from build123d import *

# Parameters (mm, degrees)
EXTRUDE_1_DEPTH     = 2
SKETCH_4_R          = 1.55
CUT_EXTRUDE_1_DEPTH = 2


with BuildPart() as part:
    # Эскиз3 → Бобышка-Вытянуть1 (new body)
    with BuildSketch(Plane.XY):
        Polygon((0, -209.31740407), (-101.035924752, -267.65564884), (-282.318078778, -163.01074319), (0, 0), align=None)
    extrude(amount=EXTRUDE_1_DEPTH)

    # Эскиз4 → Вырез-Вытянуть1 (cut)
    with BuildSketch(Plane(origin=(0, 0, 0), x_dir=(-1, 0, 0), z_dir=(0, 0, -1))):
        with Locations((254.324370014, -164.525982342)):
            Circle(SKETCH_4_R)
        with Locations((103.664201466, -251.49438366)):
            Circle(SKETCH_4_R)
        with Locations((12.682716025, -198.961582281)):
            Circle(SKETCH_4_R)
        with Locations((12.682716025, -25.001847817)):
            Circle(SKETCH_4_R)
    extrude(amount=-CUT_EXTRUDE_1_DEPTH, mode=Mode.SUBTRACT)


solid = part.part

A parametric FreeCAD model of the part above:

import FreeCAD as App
import Part
import Sketcher
Q = App.Units.Quantity

doc = App.newDocument("Part")
params = doc.addObject("Spreadsheet::Sheet", "Params")
for row, (alias, value) in enumerate([
    ("sketch1_length", "326 mm"),
    ("pad1_length", "2 mm"),
    ("sketch2_diameter", "3.1 mm"),
    ("pocket1_length", "2 mm"),
], start=1):
    params.set(f"A{row}", alias)
    params.set(f"B{row}", "=" + value)
    params.setAlias(f"B{row}", alias)

body = doc.addObject("PartDesign::Body", "Body")

# Sketch on XY plane
sketch1 = body.newObject("Sketcher::SketchObject", "Sketch")
sketch1.AttachmentSupport = (doc.getObject("XY_Plane"), [""])
sketch1.MapMode = "FlatFace"
sketch1.addGeometry([
    Part.LineSegment(App.Vector(-101.035925, -267.655649, 0), App.Vector(0, -209.317404, 0)),
    Part.LineSegment(App.Vector(0, -209.317404, 0), App.Vector(0, 0, 0)),
    Part.LineSegment(App.Vector(0, 0, 0), App.Vector(-282.318079, -163.010743, 0)),
    Part.LineSegment(App.Vector(-282.318079, -163.010743, 0), App.Vector(-101.035925, -267.655649, 0)),
], False)
sketch1.addConstraint([
    Sketcher.Constraint("Coincident", 0, 2, 1, 1),
    Sketcher.Constraint("Coincident", 1, 2, 2, 1),
    Sketcher.Constraint("Coincident", 2, 2, 3, 1),
    Sketcher.Constraint("Coincident", 3, 2, 0, 1),
    Sketcher.Constraint("Vertical", 1),
    Sketcher.Constraint("Coincident", 1, 2, -1, 1),
    Sketcher.Constraint("Parallel", 0, 2),
    Sketcher.Constraint("Distance", 2, Q("326 mm")),
    Sketcher.Constraint("Distance", 0, Q("116.6688 mm")),
    Sketcher.Constraint("DistanceY", 1, 1, 1, 2, Q("209.317404 mm")),
    Sketcher.Constraint("DistanceX", 2, 2, -1, 1, Q("282.318079 mm")),
])
sketch1.setExpression("Constraints[7]", "Params.sketch1_length")
pad1 = body.newObject("PartDesign::Pad", "Pad")
pad1.Profile = sketch1
pad1.setExpression("Length", "Params.pad1_length")

# Sketch on XY plane
sketch2 = body.newObject("Sketcher::SketchObject", "Sketch001")
sketch2.AttachmentSupport = (doc.getObject("XY_Plane"), [""])
sketch2.MapMode = "FlatFace"
sketch2.addGeometry([
    Part.Circle(App.Vector(-254.32437, -164.525982, 0), App.Vector(0, 0, 1), 1.55),
    Part.Circle(App.Vector(-103.664201, -251.494384, 0), App.Vector(0, 0, 1), 1.55),
    Part.Circle(App.Vector(-12.682716, -198.961582, 0), App.Vector(0, 0, 1), 1.55),
    Part.Circle(App.Vector(-12.682716, -25.001848, 0), App.Vector(0, 0, 1), 1.55),
], False)
sketch2.addConstraint([
    Sketcher.Constraint("Equal", 0, 1),
    Sketcher.Constraint("Equal", 1, 2),
    Sketcher.Constraint("Equal", 2, 3),
    Sketcher.Constraint("Vertical", 2, 3, 3, 3),
    Sketcher.Constraint("Diameter", 0, Q("3.1 mm")),
    Sketcher.Constraint("DistanceX", 1, 3, -1, 1, Q("103.664201 mm")),
    Sketcher.Constraint("DistanceY", 1, 3, 0, 3, Q("86.968401 mm")),
    Sketcher.Constraint("DistanceY", 1, 3, 2, 3, Q("52.532801 mm")),
    Sketcher.Constraint("DistanceX", 0, 3, -1, 1, Q("254.32437 mm")),
    Sketcher.Constraint("DistanceY", 0, 3, -1, 1, Q("164.525982 mm")),
    Sketcher.Constraint("DistanceX", 2, 3, -1, 1, Q("12.682716 mm")),
    Sketcher.Constraint("DistanceY", 3, 3, -1, 1, Q("25.001848 mm")),
])
sketch2.setExpression("Constraints[4]", "Params.sketch2_diameter")
pocket1 = body.newObject("PartDesign::Pocket", "Pocket")
pocket1.Profile = sketch2
pocket1.setExpression("Length", "Params.pocket1_length")
pocket1.Reversed = True

doc.recompute()
